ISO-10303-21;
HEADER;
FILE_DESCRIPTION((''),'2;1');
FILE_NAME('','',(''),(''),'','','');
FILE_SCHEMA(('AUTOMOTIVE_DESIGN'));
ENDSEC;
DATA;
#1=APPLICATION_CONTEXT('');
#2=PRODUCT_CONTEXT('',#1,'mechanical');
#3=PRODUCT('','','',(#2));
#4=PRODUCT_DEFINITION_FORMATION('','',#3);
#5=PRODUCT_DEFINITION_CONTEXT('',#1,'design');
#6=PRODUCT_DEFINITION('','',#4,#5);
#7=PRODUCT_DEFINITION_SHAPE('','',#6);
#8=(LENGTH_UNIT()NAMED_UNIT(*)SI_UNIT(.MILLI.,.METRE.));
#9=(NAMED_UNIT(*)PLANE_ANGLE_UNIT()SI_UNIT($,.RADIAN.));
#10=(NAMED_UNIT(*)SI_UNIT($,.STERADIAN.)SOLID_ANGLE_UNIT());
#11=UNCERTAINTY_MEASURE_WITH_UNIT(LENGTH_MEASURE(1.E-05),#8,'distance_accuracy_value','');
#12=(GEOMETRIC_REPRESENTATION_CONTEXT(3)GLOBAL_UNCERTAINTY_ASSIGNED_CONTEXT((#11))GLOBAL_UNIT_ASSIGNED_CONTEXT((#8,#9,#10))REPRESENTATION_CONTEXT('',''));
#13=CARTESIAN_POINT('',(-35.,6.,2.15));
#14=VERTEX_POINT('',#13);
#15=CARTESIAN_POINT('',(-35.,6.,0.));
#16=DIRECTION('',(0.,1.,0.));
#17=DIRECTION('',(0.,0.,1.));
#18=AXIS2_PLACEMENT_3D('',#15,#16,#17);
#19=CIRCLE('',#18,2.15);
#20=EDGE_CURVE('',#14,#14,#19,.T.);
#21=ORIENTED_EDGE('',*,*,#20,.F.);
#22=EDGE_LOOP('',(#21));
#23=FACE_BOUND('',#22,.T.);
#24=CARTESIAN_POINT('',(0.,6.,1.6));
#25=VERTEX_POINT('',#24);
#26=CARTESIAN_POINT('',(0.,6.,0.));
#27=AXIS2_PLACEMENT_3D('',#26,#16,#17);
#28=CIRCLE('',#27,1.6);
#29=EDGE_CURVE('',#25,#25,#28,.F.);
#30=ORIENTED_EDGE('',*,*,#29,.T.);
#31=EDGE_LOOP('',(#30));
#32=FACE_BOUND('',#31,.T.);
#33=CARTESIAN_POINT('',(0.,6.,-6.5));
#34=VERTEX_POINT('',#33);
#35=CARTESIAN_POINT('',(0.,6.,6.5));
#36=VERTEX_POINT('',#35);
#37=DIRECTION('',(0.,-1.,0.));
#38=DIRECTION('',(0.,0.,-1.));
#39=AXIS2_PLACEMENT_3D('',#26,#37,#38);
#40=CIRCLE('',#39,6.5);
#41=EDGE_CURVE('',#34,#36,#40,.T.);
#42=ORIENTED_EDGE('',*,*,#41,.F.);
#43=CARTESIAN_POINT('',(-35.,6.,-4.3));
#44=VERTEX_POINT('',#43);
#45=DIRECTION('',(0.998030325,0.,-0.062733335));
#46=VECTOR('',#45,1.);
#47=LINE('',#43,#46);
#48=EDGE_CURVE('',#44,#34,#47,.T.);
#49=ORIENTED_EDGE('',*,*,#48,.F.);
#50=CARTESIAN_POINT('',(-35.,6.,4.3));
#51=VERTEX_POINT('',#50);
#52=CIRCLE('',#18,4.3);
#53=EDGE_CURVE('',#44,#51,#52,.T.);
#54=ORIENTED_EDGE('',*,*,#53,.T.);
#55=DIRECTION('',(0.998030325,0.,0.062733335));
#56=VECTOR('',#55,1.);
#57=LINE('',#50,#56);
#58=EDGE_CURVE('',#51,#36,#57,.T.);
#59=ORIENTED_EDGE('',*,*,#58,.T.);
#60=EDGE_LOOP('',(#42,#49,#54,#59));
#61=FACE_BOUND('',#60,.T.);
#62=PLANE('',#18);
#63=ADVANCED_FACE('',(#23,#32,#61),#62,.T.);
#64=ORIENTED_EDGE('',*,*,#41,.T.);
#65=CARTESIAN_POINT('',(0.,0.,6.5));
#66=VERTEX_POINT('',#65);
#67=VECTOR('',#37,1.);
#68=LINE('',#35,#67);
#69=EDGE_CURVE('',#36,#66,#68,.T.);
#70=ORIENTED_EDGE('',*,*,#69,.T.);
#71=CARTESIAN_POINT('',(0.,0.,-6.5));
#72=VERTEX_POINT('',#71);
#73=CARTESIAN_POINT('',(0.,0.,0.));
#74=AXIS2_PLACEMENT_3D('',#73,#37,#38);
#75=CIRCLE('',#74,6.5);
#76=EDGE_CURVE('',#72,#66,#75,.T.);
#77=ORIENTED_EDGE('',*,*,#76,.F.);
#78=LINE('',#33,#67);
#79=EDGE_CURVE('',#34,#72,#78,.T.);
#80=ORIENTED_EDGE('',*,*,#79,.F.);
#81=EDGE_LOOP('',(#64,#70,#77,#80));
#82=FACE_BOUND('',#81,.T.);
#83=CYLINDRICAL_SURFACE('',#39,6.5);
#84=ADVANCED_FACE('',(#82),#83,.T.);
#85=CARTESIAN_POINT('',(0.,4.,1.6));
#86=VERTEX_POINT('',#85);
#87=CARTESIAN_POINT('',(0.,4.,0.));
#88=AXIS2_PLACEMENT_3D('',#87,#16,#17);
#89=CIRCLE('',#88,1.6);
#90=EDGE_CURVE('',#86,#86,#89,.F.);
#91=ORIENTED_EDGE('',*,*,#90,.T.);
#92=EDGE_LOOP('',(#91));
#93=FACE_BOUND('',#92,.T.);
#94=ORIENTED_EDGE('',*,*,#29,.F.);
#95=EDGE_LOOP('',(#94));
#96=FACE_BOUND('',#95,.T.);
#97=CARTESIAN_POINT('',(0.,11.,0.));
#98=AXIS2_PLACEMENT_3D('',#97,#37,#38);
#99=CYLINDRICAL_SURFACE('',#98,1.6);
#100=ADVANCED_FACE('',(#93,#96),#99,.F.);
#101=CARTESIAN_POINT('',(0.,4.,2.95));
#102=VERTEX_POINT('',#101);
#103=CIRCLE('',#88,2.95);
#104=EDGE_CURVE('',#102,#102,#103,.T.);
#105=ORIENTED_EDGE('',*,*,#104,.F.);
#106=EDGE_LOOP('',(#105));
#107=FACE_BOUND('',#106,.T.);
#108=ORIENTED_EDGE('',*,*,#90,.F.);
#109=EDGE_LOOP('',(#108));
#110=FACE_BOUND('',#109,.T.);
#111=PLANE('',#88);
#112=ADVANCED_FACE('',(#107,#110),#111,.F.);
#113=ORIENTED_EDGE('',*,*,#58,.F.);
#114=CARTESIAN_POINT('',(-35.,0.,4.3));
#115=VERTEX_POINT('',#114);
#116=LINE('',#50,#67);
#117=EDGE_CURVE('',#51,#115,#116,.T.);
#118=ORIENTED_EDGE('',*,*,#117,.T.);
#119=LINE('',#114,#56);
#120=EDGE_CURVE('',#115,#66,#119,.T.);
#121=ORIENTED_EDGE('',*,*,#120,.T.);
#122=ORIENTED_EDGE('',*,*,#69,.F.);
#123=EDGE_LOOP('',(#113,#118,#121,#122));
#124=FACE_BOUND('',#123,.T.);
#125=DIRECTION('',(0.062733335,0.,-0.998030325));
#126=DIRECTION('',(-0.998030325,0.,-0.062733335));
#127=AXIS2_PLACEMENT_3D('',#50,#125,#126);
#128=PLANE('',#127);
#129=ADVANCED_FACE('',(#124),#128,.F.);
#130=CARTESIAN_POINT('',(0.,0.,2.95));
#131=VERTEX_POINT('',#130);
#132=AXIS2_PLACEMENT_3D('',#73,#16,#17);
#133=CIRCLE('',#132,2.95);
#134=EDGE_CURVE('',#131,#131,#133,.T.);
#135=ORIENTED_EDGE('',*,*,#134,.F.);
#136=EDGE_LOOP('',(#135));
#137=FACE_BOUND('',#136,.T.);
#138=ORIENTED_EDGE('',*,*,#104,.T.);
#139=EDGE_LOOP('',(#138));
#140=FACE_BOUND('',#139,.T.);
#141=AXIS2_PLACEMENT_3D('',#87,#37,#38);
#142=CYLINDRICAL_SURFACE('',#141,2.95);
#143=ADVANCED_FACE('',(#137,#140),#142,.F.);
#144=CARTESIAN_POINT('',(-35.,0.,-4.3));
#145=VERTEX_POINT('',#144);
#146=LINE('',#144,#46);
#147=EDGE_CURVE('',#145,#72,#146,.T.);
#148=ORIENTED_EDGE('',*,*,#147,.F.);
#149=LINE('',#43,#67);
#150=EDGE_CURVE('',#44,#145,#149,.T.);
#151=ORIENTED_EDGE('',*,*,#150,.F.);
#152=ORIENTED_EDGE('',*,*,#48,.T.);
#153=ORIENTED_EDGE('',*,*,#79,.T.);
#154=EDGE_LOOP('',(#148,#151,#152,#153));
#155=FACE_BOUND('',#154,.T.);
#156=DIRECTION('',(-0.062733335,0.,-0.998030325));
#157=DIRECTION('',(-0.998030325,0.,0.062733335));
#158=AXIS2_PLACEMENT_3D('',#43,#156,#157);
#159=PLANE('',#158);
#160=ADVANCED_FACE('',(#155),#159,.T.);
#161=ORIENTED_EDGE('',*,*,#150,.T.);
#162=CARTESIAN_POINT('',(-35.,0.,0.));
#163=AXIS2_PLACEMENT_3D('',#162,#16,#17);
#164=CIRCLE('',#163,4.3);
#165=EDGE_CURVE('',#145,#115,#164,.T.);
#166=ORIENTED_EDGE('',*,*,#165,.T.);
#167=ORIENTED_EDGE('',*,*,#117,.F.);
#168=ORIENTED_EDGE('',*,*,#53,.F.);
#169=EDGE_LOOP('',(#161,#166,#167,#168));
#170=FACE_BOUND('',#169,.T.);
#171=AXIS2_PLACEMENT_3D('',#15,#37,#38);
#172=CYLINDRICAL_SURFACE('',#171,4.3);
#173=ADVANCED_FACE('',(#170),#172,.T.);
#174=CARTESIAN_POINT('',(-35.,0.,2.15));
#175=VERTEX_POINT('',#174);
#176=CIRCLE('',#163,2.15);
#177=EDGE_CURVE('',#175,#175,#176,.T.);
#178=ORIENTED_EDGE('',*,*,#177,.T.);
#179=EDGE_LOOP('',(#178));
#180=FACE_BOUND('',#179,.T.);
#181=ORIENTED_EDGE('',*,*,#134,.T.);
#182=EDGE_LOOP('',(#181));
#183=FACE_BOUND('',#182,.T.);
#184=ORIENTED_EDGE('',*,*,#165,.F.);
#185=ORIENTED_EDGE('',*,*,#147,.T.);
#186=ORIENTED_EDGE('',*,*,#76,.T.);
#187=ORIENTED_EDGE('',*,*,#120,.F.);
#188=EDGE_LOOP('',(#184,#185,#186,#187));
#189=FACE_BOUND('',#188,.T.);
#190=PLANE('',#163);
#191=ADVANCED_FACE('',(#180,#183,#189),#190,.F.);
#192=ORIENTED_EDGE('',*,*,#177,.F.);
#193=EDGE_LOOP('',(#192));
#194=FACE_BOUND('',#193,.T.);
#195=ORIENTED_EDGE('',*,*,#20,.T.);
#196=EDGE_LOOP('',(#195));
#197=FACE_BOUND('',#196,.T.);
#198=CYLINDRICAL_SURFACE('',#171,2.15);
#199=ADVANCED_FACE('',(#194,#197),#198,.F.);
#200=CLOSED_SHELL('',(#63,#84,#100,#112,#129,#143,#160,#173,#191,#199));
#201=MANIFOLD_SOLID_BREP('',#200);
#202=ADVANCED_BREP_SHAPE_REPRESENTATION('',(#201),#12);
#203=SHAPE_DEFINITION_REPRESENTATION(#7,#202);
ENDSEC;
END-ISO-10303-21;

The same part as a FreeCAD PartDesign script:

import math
import FreeCAD as App
import Part
import Sketcher
Q = App.Units.Quantity

doc = App.newDocument("Part")
body = doc.addObject("PartDesign::Body", "Body")

# Sketch on XZ plane
sketch1 = body.newObject("Sketcher::SketchObject", "Sketch")
sketch1.AttachmentSupport = (doc.getObject("XZ_Plane"), [""])
sketch1.MapMode = "FlatFace"
sketch1.addGeometry([
    Part.LineSegment(App.Vector(0, -6.5, 0), App.Vector(-35, -4.3, 0)),
    Part.ArcOfCircle(Part.Circle(App.Vector(-35, 0, 0), App.Vector(0, 0, 1), 4.3), math.radians(90), math.radians(270)),
    Part.LineSegment(App.Vector(-35, 4.3, 0), App.Vector(0, 6.5, 0)),
    Part.ArcOfCircle(Part.Circle(App.Vector(0, 0, 0), App.Vector(0, 0, 1), 6.5), math.radians(-90), math.radians(90)),
], False)
sketch1.addConstraint([
    Sketcher.Constraint("Coincident", 0, 2, 1, 2),
    Sketcher.Constraint("Coincident", 1, 1, 2, 1),
    Sketcher.Constraint("Coincident", 2, 2, 3, 2),
    Sketcher.Constraint("Coincident", 3, 1, 0, 1),
    Sketcher.Constraint("Coincident", 3, 3, -1, 1),
    Sketcher.Constraint("Symmetric", 0, 2, 1, 1, -1),
    Sketcher.Constraint("PointOnObject", 2, 2, -2),
    Sketcher.Constraint("PointOnObject", 3, 1, -2),
    Sketcher.Constraint("Vertical", 1, 3, 0, 2),
    Sketcher.Constraint("Radius", 1, Q("4.3 mm")),
    Sketcher.Constraint("Radius", 3, Q("6.5 mm")),
    Sketcher.Constraint("DistanceX", 1, 3, -1, 1, Q("35 mm")),
])
pad1 = body.newObject("PartDesign::Pad", "Pad")
pad1.Profile = sketch1
pad1.Length = 6
pad1.Reversed = True

# Sketch on XZ plane
sketch2 = body.newObject("Sketcher::SketchObject", "Sketch001")
sketch2.AttachmentSupport = (doc.getObject("XZ_Plane"), [""])
sketch2.MapMode = "FlatFace"
sketch2.addGeometry(Part.Circle(App.Vector(-35, 0, 0), App.Vector(0, 0, 1), 2.15), False)
sketch2.addConstraint([
    Sketcher.Constraint("PointOnObject", 0, 3, -1),
    Sketcher.Constraint("Diameter", 0, Q("4.3 mm")),
    Sketcher.Constraint("DistanceX", 0, 3, -1, 1, Q("35 mm")),
])
pocket1 = body.newObject("PartDesign::Pocket", "Pocket")
pocket1.Profile = sketch2
pocket1.Length = 6

# Sketch on XZ plane
sketch3 = body.newObject("Sketcher::SketchObject", "Sketch002")
sketch3.AttachmentSupport = (doc.getObject("XZ_Plane"), [""])
sketch3.MapMode = "FlatFace"
sketch3.addGeometry(Part.Circle(App.Vector(0, 0, 0), App.Vector(0, 0, 1), 2.95), False)
sketch3.addConstraint([
    Sketcher.Constraint("Coincident", 0, 3, -1, 1),
    Sketcher.Constraint("Diameter", 0, Q("5.9 mm")),
])
pocket2 = body.newObject("PartDesign::Pocket", "Pocket001")
pocket2.Profile = sketch3
pocket2.Length = 4

# Sketch on XZ plane
sketch4 = body.newObject("Sketcher::SketchObject", "Sketch003")
sketch4.AttachmentSupport = (doc.getObject("XZ_Plane"), [""])
sketch4.MapMode = "FlatFace"
sketch4.addGeometry(Part.Circle(App.Vector(0, 0, 0), App.Vector(0, 0, 1), 1.6), False)
sketch4.addConstraint([
    Sketcher.Constraint("Coincident", 0, 3, -1, 1),
    Sketcher.Constraint("Diameter", 0, Q("3.2 mm")),
])
pocket3 = body.newObject("PartDesign::Pocket", "Pocket002")
pocket3.Profile = sketch4
pocket3.Length = 11

doc.recompute()
